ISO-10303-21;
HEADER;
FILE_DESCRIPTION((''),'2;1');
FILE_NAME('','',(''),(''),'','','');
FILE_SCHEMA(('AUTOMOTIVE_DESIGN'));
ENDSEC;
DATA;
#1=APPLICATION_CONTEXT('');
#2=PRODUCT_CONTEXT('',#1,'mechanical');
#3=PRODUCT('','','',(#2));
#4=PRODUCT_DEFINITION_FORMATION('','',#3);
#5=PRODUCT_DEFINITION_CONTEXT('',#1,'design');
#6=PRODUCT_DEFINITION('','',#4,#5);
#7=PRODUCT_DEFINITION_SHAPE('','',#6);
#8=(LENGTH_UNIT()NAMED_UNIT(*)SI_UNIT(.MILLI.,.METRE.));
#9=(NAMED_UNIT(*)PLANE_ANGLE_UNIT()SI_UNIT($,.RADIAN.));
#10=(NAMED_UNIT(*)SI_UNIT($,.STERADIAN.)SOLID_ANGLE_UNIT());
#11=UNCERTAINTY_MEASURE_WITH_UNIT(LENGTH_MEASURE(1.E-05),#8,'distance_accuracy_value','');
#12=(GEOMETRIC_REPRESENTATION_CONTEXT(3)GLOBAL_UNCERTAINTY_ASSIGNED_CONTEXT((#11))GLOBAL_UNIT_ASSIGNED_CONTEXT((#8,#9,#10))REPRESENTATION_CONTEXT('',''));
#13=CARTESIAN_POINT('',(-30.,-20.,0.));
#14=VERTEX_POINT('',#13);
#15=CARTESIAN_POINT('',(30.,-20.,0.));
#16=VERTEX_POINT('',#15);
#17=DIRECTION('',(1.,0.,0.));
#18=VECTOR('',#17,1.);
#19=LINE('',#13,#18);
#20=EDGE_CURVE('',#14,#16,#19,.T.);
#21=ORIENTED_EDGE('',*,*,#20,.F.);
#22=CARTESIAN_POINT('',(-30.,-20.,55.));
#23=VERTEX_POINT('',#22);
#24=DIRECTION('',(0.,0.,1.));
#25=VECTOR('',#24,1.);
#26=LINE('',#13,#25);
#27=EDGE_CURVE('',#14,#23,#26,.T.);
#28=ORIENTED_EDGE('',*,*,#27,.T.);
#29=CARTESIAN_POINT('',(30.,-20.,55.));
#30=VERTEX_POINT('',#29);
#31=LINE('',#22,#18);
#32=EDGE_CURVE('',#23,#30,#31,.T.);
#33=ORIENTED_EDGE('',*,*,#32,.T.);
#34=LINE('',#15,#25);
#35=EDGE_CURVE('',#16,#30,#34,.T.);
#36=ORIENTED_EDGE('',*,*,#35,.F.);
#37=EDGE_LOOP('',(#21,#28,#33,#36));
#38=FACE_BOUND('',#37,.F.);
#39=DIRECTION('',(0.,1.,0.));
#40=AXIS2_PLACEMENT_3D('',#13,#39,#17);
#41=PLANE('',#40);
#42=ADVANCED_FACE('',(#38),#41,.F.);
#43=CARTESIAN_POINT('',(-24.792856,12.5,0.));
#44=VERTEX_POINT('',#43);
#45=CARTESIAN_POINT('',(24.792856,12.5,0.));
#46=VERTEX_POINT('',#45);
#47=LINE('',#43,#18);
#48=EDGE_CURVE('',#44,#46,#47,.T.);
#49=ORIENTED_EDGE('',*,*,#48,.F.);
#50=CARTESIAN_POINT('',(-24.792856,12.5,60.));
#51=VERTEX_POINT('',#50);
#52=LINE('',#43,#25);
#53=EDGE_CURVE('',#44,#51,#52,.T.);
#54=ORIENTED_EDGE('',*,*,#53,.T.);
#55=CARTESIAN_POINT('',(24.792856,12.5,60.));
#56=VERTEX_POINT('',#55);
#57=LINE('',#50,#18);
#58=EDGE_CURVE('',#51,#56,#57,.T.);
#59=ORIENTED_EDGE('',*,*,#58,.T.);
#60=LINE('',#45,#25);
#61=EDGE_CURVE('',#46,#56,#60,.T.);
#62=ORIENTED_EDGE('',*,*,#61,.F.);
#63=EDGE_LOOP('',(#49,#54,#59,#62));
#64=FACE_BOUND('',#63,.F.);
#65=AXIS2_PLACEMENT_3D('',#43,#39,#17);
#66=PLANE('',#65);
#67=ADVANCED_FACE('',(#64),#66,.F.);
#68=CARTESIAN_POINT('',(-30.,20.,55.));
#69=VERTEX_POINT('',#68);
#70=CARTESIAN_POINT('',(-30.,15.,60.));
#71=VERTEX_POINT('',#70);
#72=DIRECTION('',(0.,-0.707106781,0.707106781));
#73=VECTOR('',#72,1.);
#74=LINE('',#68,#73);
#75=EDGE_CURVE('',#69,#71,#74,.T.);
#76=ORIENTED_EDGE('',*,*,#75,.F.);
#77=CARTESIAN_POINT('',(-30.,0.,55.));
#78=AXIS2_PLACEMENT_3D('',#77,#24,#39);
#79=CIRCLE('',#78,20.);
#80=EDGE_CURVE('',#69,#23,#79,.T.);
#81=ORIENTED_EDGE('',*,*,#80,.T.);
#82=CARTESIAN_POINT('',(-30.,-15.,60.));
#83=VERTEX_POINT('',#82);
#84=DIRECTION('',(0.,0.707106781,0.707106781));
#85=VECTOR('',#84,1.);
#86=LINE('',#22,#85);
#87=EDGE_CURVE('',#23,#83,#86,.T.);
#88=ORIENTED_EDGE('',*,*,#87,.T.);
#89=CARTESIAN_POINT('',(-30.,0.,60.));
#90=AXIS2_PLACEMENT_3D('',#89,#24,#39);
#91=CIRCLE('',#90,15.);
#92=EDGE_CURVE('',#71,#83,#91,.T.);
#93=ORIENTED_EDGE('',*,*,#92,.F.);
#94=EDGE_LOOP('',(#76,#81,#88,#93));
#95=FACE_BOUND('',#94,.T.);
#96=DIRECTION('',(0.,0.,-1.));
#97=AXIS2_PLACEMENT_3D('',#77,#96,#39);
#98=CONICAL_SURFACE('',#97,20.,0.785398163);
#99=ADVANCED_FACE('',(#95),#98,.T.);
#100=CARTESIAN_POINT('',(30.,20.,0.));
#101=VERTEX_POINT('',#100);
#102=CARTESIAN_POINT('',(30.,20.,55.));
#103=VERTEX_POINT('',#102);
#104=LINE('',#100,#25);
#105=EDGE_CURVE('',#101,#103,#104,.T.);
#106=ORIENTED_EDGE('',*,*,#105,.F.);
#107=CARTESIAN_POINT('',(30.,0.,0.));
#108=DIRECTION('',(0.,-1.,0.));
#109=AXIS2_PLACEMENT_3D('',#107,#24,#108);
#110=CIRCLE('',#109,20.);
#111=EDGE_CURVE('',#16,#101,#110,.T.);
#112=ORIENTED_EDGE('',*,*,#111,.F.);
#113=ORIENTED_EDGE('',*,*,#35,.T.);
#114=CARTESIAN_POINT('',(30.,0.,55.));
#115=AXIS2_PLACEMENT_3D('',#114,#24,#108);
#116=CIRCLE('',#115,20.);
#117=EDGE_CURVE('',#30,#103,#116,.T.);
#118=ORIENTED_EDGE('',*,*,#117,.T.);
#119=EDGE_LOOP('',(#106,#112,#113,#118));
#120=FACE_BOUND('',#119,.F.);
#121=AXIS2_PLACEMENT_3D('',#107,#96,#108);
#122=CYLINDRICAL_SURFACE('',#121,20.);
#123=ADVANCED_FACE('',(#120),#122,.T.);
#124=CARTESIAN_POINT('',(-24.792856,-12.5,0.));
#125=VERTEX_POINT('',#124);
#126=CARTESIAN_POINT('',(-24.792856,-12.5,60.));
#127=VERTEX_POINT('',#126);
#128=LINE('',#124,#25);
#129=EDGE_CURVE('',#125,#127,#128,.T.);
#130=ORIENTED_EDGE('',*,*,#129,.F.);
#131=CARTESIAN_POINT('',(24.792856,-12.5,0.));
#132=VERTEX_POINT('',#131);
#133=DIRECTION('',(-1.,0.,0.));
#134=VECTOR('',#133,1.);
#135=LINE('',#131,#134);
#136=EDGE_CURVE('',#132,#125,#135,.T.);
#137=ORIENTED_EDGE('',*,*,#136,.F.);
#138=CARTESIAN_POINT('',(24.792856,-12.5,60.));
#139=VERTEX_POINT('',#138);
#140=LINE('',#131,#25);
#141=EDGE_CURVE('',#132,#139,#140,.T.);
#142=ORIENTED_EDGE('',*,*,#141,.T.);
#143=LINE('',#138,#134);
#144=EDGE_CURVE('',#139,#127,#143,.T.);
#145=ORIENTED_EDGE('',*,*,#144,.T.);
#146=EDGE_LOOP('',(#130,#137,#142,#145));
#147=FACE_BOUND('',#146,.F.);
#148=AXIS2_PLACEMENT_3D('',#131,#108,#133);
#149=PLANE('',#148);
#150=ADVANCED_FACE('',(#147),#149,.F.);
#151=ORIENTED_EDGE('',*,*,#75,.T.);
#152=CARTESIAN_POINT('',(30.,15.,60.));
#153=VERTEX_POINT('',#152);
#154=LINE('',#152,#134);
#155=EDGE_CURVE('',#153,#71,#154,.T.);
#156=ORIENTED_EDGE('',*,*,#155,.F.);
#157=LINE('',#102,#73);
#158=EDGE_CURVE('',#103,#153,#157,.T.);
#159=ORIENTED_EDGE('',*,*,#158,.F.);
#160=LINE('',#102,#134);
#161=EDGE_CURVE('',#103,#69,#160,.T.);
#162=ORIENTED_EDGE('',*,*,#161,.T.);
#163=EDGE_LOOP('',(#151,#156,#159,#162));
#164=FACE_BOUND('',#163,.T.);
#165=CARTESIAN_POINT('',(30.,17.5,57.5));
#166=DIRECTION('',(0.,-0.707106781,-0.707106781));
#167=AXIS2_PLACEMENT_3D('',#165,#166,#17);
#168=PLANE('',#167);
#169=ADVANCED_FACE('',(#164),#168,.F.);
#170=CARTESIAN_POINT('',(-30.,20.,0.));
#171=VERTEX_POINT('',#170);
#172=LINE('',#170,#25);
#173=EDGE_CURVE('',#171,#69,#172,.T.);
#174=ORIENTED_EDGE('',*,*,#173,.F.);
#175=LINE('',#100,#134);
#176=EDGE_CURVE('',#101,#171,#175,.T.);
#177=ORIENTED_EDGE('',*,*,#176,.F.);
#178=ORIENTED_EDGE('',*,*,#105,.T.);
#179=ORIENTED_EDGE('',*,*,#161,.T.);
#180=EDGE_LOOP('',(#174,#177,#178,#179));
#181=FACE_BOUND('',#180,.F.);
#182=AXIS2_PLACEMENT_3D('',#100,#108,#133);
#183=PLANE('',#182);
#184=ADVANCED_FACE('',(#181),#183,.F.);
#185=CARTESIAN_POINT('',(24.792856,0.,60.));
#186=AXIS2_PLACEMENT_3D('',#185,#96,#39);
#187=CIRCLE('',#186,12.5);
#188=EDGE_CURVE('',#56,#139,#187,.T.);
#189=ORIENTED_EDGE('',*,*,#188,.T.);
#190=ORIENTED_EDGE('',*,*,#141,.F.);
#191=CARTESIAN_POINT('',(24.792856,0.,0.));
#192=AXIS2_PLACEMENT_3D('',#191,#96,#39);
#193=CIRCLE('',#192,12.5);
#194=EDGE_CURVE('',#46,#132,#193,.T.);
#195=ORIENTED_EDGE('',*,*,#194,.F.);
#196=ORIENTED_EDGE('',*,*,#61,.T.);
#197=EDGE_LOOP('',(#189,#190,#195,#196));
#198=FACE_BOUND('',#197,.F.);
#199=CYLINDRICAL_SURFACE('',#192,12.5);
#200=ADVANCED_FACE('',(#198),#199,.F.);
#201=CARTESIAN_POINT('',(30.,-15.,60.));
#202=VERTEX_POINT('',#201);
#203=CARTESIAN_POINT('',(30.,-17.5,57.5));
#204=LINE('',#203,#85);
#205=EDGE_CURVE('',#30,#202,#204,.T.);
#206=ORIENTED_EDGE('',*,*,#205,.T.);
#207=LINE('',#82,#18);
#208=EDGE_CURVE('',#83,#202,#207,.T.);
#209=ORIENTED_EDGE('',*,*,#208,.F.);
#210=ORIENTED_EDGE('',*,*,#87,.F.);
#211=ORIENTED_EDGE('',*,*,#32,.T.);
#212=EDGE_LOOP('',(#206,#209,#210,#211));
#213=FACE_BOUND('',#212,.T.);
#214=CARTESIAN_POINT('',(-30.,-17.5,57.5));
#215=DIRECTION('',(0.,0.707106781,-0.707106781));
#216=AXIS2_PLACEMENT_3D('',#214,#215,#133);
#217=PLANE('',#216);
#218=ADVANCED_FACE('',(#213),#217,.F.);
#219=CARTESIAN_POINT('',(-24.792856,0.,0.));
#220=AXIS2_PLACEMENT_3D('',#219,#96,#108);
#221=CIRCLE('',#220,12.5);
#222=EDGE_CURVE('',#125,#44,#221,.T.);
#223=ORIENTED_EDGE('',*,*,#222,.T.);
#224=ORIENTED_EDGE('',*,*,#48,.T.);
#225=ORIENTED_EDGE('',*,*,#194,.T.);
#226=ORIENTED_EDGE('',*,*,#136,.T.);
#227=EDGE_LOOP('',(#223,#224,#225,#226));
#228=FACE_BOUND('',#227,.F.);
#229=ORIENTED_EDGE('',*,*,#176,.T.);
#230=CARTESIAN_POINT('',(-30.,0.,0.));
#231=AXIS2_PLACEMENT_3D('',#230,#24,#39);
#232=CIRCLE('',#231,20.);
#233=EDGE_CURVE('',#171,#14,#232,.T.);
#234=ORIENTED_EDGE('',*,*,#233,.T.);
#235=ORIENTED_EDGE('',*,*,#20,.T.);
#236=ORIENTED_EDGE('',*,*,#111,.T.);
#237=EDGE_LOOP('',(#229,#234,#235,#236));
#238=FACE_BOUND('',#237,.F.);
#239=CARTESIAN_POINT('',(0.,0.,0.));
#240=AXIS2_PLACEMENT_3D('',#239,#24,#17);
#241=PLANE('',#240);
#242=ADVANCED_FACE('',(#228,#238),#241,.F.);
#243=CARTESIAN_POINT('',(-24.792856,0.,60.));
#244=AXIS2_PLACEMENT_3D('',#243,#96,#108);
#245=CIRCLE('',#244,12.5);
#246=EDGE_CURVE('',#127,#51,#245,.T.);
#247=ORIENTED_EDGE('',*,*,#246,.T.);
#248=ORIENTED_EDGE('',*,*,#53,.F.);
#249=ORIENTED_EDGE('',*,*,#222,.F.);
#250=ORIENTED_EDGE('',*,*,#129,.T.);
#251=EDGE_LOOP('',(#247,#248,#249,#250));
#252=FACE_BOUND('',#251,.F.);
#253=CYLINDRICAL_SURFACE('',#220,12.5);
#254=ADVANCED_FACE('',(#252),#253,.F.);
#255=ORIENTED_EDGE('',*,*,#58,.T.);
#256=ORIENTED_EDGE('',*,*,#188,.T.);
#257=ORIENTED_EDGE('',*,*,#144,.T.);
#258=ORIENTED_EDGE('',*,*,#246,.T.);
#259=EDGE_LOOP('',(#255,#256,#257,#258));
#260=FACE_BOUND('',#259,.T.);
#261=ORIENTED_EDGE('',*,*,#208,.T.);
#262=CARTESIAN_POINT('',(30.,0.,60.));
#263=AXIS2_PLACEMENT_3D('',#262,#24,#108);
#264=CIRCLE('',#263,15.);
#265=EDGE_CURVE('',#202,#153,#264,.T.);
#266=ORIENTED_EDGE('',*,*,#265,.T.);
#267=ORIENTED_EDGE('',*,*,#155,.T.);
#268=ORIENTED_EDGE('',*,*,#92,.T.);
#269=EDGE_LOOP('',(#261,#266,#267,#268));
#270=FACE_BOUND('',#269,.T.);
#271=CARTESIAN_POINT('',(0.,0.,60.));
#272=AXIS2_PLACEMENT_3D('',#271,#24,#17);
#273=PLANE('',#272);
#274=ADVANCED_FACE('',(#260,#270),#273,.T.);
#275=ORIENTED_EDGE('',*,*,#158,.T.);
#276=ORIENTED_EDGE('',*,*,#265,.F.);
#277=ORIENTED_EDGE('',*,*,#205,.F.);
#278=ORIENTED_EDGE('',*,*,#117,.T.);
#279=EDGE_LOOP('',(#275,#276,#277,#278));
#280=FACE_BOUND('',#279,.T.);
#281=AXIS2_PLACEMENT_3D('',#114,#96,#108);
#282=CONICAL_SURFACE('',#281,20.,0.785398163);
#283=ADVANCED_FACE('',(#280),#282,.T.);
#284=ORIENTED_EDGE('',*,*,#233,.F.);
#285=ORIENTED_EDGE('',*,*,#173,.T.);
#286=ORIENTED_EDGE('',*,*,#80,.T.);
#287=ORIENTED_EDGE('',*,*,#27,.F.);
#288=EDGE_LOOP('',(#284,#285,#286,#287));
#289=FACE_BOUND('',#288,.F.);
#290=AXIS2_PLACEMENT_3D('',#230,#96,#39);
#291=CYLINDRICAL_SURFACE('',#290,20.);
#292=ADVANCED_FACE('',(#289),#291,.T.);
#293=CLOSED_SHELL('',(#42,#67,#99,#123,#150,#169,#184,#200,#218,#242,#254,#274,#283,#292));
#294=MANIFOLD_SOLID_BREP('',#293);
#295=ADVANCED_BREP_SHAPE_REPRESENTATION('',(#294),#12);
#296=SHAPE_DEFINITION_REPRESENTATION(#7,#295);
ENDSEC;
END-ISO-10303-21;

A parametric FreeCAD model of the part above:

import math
import FreeCAD as App
import Part
import Sketcher
Q = App.Units.Quantity


def edges_at(feature, points):
    """Names of the edges that pass closest to the given points."""
    edges = feature.Shape.Edges
    near = lambda p: min(range(len(edges)), key=lambda i: edges[i].distToShape(Part.Vertex(*p))[0])
    return sorted({f"Edge{near(p) + 1}" for p in points})

doc = App.newDocument("Part")
body = doc.addObject("PartDesign::Body", "Body")

# Sketch on XY plane
sketch1 = body.newObject("Sketcher::SketchObject", "Sketch")
sketch1.AttachmentSupport = (doc.getObject("XY_Plane"), [""])
sketch1.MapMode = "FlatFace"
sketch1.addGeometry([
    Part.LineSegment(App.Vector(30, 20, 0), App.Vector(-30, 20, 0)),  # 0
    Part.ArcOfCircle(Part.Circle(App.Vector(-30, 0, 0), App.Vector(0, 0, 1), 20), math.radians(90), math.radians(270)),  # 1
    Part.LineSegment(App.Vector(-30, -20, 0), App.Vector(30, -20, 0)),  # 2
    Part.ArcOfCircle(Part.Circle(App.Vector(30, 0, 0), App.Vector(0, 0, 1), 20), math.radians(-90), math.radians(90)),  # 3
    Part.ArcOfCircle(Part.Circle(App.Vector(25, 0, 0), App.Vector(0, 0, 1), 12), math.radians(-90), math.radians(90)),  # 4
    Part.LineSegment(App.Vector(25, -12, 0), App.Vector(-25, -12, 0)),  # 5
    Part.ArcOfCircle(Part.Circle(App.Vector(-25, 0, 0), App.Vector(0, 0, 1), 12), math.radians(90), math.radians(270)),  # 6
    Part.LineSegment(App.Vector(-25, 12, 0), App.Vector(25, 12, 0)),  # 7
], False)
sketch1.addConstraint([
    Sketcher.Constraint("Tangent", 0, 2, 1, 1),
    Sketcher.Constraint("Tangent", 1, 2, 2, 1),
    Sketcher.Constraint("Tangent", 2, 2, 3, 1),
    Sketcher.Constraint("Tangent", 3, 2, 0, 1),
    Sketcher.Constraint("Tangent", 4, 1, 5, 1),
    Sketcher.Constraint("Tangent", 5, 2, 6, 2),
    Sketcher.Constraint("Tangent", 6, 1, 7, 1),
    Sketcher.Constraint("Tangent", 7, 2, 4, 2),
    Sketcher.Constraint("Horizontal", 0),
    Sketcher.Constraint("Horizontal", 2),
    Sketcher.Constraint("Horizontal", 5),
    Sketcher.Constraint("Horizontal", 7),
    Sketcher.Constraint("Symmetric", 1, 3, 3, 3, -1, 1),
    Sketcher.Constraint("Symmetric", 4, 3, 6, 3, -1, 1),
    Sketcher.Constraint("Radius", 1, Q("20 mm")),
    Sketcher.Constraint("Radius", 4, Q("12.5 mm")),
    Sketcher.Constraint("DistanceX", 0, 2, 0, 1, Q("60 mm")),
    Sketcher.Constraint("DistanceX", 5, 2, 5, 1, Q("49.585711 mm")),
])
pad1 = body.newObject("PartDesign::Pad", "Pad")
pad1.Profile = sketch1
pad1.Length = 60
doc.recompute()

chamfer = body.newObject("PartDesign::Chamfer", "Chamfer")
chamfer.Base = (pad1, edges_at(pad1, [(-50, 0, 60)]))
chamfer.ChamferType = "Two distances"
chamfer.Size = 5
chamfer.Size2 = 5

doc.recompute()
